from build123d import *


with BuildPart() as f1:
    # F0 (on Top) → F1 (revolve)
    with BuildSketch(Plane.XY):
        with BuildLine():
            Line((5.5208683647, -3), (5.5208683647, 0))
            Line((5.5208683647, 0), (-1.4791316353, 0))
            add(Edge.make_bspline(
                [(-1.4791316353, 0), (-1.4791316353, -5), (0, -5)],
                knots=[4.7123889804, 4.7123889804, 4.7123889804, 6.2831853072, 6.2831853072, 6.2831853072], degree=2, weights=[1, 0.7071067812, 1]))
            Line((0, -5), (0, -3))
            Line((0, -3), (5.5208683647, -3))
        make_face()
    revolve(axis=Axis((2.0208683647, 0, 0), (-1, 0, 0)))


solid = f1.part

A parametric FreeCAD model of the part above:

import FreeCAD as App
import Part
import Sketcher

V = App.Vector
Q = App.Units.Quantity

doc = App.newDocument("Part")
body = doc.addObject("PartDesign::Body", "Body")

# Sketch on XY plane
sketch1 = body.newObject("Sketcher::SketchObject", "Sketch")
sketch1.AttachmentSupport = (doc.getObject("XY_Plane"), [""])
sketch1.MapMode = "FlatFace"
sketch1.addGeometry(Part.LineSegment(V(5.520868, -3, 0), V(5.520868, 0, 0)), False)
sketch1.addGeometry(Part.LineSegment(V(5.520868, 0, 0), V(-1.479132, 0, 0)), False)
sketch1.addGeometry(Part.BSplineCurve([V(-1.479132, 0, 0), V(-1.479132, -5, 0), V(0, -5, 0)], [3, 3], [4.71238898, 6.283185307], False, 2, [1, 0.707106781, 1], False), False)
sketch1.addGeometry(Part.LineSegment(V(0, -5, 0), V(0, -3, 0)), False)
sketch1.addGeometry(Part.LineSegment(V(0, -3, 0), V(5.520868, -3, 0)), False)
sketch1.addConstraint(Sketcher.Constraint("Block", 2))
sketch1.addConstraint(Sketcher.Constraint("Coincident", 0, 2, 1, 1))
sketch1.addConstraint(Sketcher.Constraint("Coincident", 1, 2, 2, 1))
sketch1.addConstraint(Sketcher.Constraint("Coincident", 2, 2, 3, 1))
sketch1.addConstraint(Sketcher.Constraint("Coincident", 3, 2, 4, 1))
sketch1.addConstraint(Sketcher.Constraint("Coincident", 4, 2, 0, 1))
sketch1.addConstraint(Sketcher.Constraint("Vertical", 0))
sketch1.addConstraint(Sketcher.Constraint("Horizontal", 1))
sketch1.addConstraint(Sketcher.Constraint("Vertical", 3))
sketch1.addConstraint(Sketcher.Constraint("Horizontal", 4))
sketch1.addConstraint(Sketcher.Constraint("DistanceX", 1, 2, 1, 1, Q("7 mm")))
sketch1.addConstraint(Sketcher.Constraint("DistanceY", 0, 1, 0, 2, Q("3 mm")))
revolution = body.newObject("PartDesign::Revolution", "Revolution")
revolution.Profile = sketch1
revolution.ReferenceAxis = (sketch1, ["H_Axis"])
revolution.Angle = 360

doc.recompute()
